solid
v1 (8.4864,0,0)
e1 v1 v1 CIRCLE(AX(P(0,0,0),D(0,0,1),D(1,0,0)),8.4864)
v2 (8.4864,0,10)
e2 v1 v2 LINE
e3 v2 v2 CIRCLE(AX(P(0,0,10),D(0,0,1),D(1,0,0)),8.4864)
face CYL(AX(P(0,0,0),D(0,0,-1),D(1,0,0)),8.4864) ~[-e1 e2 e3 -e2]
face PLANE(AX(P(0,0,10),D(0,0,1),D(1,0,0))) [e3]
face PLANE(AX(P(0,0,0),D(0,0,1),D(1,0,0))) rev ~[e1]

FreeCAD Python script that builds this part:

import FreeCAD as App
import Part
import Sketcher

doc = App.newDocument("Part")
body = doc.addObject("PartDesign::Body", "Body")

# Sketch on XY plane
sketch1 = body.newObject("Sketcher::SketchObject", "Sketch")
sketch1.AttachmentSupport = (doc.getObject("XY_Plane"), [""])
sketch1.MapMode = "FlatFace"
sketch1.addGeometry(Part.Circle(App.Vector(0, 0, 0), App.Vector(0, 0, 1), 8), False)
sketch1.addConstraint(Sketcher.Constraint("Coincident", 0, 3, -1, 1))
sketch1.addConstraint(Sketcher.Constraint("Diameter", 0, 16.9728))
pad1 = body.newObject("PartDesign::Pad", "Pad")
pad1.Profile = sketch1
pad1.Length = 10

doc.recompute()
